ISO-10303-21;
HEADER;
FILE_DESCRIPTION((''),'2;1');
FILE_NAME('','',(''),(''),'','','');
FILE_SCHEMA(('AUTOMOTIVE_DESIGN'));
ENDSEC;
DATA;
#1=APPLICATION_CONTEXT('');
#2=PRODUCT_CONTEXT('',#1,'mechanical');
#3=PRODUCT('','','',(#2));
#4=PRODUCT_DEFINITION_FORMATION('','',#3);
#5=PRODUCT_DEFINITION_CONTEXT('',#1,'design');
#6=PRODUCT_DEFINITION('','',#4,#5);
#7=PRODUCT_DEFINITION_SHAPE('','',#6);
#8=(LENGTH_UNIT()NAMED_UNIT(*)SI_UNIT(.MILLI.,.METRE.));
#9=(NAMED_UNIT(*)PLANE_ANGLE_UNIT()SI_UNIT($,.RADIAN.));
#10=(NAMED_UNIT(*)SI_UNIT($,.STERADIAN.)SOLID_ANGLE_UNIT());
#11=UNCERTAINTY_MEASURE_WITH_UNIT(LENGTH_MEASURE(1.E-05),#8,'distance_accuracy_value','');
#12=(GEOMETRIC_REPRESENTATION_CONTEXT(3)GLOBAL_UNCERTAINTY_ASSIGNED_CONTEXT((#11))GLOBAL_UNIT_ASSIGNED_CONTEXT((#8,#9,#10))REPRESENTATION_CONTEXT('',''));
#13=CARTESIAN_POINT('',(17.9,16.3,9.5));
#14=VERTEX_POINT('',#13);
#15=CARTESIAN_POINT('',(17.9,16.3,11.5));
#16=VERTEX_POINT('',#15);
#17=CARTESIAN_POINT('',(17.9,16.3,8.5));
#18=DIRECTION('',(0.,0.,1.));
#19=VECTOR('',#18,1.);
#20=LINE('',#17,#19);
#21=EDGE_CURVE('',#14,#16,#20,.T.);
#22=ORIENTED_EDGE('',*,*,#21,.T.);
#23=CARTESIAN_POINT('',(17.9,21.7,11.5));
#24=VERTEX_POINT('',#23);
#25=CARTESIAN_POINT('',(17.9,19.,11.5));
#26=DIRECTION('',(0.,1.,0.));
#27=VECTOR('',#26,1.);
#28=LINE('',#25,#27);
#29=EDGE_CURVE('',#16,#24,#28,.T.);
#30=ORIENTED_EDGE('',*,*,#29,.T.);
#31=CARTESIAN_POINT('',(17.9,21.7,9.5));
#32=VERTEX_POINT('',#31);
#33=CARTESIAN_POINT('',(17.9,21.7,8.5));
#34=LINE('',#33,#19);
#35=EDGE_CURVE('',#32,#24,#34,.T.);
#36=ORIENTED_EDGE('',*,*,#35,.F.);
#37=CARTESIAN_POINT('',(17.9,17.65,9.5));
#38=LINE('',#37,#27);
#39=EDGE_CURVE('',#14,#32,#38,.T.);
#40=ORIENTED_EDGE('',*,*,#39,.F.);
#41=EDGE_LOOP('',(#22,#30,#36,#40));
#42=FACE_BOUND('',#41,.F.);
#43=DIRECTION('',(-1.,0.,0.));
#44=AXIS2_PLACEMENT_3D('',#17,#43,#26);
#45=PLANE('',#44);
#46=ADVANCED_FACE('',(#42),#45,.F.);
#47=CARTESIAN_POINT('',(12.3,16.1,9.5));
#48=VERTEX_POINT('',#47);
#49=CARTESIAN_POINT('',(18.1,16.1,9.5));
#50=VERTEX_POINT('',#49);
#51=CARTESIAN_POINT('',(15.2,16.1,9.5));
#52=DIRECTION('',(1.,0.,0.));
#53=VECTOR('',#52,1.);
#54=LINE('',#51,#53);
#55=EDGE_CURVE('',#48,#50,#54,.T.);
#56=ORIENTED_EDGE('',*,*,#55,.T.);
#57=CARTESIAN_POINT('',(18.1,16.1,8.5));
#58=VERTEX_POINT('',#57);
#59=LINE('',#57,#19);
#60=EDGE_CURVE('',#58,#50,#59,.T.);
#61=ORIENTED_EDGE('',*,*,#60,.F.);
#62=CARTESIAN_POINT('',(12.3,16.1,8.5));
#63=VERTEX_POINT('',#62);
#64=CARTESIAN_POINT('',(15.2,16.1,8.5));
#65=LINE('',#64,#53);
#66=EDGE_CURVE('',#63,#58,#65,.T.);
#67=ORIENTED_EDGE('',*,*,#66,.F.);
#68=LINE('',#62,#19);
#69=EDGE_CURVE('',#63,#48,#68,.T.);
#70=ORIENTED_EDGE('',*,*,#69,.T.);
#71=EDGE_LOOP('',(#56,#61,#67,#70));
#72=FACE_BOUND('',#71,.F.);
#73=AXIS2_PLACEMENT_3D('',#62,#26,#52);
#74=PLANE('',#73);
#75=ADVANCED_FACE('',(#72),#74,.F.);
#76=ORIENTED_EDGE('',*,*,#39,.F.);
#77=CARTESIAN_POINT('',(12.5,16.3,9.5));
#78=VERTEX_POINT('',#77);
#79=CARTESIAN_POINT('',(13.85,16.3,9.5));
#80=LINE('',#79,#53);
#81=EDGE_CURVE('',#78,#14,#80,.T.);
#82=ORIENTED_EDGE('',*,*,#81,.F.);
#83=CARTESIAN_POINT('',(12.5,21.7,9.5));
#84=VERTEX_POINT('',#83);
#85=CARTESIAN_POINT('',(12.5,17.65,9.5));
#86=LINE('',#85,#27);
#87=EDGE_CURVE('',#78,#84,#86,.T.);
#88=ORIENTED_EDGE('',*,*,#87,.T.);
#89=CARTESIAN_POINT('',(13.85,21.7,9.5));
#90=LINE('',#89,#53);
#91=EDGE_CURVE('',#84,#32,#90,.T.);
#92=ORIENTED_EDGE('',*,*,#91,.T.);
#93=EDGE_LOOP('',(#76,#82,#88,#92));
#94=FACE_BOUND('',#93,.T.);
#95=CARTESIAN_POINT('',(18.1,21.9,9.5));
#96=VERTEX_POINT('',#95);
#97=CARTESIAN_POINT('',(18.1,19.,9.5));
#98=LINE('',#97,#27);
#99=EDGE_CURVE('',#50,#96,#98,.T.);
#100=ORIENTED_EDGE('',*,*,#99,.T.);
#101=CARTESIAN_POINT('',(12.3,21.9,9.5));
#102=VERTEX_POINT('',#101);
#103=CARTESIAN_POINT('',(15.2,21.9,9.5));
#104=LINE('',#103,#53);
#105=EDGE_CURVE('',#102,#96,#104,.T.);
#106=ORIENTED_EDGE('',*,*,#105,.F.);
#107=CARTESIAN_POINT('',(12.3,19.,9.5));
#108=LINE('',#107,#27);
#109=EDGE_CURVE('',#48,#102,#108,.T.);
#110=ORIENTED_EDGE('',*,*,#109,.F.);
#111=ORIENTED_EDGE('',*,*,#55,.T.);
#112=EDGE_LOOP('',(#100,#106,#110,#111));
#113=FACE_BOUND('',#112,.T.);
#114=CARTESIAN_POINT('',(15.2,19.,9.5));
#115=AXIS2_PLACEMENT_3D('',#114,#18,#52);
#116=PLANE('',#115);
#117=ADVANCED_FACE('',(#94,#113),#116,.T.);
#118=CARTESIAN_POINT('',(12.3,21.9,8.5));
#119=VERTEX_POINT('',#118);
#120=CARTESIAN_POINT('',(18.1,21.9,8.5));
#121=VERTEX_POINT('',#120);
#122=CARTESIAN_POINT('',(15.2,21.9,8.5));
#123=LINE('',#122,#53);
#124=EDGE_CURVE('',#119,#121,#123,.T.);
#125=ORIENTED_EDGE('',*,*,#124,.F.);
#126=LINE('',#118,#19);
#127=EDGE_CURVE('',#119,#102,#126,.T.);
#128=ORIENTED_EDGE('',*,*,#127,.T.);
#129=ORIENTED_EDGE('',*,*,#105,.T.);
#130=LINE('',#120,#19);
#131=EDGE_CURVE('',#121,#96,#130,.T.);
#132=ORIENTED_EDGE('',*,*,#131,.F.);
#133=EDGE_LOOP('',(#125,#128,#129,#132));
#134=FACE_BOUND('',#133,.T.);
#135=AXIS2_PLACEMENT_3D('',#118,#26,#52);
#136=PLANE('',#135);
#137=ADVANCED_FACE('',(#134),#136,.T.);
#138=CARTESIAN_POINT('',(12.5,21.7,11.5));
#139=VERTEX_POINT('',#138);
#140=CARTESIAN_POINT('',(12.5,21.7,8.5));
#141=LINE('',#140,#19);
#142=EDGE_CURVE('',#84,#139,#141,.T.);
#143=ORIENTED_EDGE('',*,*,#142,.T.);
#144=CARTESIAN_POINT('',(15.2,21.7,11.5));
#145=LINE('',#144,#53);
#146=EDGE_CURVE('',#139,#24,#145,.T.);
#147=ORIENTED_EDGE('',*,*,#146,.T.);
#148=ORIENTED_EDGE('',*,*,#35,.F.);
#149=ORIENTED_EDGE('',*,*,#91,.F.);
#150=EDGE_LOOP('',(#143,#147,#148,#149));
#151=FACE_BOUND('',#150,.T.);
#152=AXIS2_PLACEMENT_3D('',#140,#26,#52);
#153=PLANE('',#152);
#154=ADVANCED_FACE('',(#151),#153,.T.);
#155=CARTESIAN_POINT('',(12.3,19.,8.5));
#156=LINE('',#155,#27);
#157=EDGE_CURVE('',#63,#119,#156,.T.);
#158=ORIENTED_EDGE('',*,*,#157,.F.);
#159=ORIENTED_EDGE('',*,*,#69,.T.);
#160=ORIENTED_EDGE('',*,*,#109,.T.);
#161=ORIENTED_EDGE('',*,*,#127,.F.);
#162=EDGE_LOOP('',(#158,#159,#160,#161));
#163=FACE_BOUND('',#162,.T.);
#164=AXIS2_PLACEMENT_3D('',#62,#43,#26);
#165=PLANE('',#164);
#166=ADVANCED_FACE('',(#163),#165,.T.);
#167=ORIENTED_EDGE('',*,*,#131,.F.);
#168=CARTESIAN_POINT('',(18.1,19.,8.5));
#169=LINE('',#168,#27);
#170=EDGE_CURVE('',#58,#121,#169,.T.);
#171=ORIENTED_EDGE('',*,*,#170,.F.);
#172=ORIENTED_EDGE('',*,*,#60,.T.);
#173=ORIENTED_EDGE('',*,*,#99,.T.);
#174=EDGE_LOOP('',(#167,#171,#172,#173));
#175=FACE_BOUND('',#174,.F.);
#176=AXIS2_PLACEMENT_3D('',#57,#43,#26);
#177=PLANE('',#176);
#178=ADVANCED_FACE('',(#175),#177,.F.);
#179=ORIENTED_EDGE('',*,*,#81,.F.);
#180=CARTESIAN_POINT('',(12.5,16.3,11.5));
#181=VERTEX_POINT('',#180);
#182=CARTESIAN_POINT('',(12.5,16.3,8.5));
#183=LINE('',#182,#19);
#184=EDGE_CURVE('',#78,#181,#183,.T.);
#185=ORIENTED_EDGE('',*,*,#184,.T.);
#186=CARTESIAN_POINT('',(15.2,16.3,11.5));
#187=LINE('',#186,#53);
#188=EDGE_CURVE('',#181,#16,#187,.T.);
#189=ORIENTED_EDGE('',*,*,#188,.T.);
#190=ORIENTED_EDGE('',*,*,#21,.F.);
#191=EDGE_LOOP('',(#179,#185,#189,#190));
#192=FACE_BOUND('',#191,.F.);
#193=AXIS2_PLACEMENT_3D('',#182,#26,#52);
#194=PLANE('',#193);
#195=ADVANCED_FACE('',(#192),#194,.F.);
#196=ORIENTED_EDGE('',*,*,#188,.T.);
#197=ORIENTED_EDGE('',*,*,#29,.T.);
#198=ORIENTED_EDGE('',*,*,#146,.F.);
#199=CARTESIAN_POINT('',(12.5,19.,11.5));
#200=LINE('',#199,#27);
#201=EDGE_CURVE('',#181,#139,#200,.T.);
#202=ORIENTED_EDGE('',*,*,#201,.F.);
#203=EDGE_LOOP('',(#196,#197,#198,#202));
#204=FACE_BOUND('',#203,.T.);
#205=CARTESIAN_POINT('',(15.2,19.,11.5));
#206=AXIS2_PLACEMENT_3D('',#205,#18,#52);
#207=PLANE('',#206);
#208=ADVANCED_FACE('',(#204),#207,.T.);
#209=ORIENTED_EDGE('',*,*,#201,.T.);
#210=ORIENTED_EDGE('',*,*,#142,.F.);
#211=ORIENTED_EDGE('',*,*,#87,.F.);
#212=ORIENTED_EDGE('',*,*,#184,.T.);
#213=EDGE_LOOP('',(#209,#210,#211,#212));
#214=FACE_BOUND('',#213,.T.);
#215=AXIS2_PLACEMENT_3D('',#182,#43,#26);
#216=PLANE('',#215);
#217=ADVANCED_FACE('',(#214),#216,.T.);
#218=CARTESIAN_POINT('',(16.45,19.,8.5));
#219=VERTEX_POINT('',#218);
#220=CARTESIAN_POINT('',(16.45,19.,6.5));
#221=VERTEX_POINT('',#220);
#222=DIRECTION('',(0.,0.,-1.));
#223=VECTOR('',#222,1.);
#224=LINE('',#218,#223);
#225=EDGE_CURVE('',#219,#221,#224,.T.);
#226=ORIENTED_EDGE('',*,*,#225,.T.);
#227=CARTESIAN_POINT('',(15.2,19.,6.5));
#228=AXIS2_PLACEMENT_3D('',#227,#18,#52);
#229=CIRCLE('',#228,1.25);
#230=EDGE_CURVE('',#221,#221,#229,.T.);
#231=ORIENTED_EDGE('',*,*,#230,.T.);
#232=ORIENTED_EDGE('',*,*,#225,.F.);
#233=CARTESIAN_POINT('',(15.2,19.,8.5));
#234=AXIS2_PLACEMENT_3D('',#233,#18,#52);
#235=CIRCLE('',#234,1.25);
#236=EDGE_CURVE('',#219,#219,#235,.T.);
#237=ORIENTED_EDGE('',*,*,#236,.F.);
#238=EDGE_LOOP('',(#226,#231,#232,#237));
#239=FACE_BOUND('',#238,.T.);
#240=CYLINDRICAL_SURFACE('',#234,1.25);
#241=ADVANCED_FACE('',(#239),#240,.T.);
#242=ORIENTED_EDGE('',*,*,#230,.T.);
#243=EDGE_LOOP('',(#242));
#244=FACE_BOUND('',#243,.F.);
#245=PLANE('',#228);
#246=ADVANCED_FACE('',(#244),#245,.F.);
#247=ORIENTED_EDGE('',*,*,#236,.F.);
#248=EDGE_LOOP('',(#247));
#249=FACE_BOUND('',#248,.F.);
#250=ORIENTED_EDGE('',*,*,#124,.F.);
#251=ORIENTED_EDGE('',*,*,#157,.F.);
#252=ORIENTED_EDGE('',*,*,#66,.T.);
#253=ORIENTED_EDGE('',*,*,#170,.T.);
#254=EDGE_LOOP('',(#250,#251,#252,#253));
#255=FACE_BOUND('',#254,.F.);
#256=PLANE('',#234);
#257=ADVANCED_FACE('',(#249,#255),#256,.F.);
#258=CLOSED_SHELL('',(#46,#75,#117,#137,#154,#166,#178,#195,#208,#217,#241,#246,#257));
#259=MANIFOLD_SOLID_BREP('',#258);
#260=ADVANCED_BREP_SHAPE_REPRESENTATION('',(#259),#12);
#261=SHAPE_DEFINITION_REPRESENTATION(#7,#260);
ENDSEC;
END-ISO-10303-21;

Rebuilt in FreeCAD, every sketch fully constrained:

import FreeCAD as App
import Part
import Sketcher
from FreeCAD import Vector
Q = App.Units.Quantity

doc = App.newDocument("Part")
body = doc.addObject("PartDesign::Body", "Body")

# Sketch on XY plane
sketch1 = body.newObject("Sketcher::SketchObject", "Sketch")
sketch1.AttachmentSupport = (doc.getObject("XY_Plane"), [""])
sketch1.MapMode = "FlatFace"
sketch1.addGeometry(Part.LineSegment(Vector(12.5, 21.7, 0), Vector(12.5, 16.3, 0)), False)
sketch1.addGeometry(Part.LineSegment(Vector(12.5, 16.3, 0), Vector(17.9, 16.3, 0)), False)
sketch1.addGeometry(Part.LineSegment(Vector(17.9, 16.3, 0), Vector(17.9, 21.7, 0)), False)
sketch1.addGeometry(Part.LineSegment(Vector(17.9, 21.7, 0), Vector(12.5, 21.7, 0)), False)
sketch1.addConstraint(Sketcher.Constraint("Coincident", 0, 2, 1, 1))
sketch1.addConstraint(Sketcher.Constraint("Coincident", 1, 2, 2, 1))
sketch1.addConstraint(Sketcher.Constraint("Coincident", 2, 2, 3, 1))
sketch1.addConstraint(Sketcher.Constraint("Coincident", 3, 2, 0, 1))
sketch1.addConstraint(Sketcher.Constraint("Vertical", 0))
sketch1.addConstraint(Sketcher.Constraint("Horizontal", 1))
sketch1.addConstraint(Sketcher.Constraint("Vertical", 2))
sketch1.addConstraint(Sketcher.Constraint("Horizontal", 3))
sketch1.addConstraint(Sketcher.Constraint("Equal", 3, 0))
sketch1.addConstraint(Sketcher.Constraint("DistanceX", 1, 1, 1, 2, Q("5.4 mm")))
sketch1.addConstraint(Sketcher.Constraint("DistanceX", -1, 1, 0, 2, Q("12.5 mm")))
sketch1.addConstraint(Sketcher.Constraint("DistanceY", -1, 1, 0, 2, Q("16.3 mm")))
pad1 = body.newObject("PartDesign::Pad", "Pad")
pad1.Profile = sketch1
pad1.Length = 3

# Sketch on XY plane
sketch2 = body.newObject("Sketcher::SketchObject", "Sketch001")
sketch2.AttachmentSupport = (doc.getObject("XY_Plane"), [""])
sketch2.MapMode = "FlatFace"
sketch2.addGeometry(Part.LineSegment(Vector(12.3, 21.9, 0), Vector(12.3, 16.1, 0)), False)
sketch2.addGeometry(Part.LineSegment(Vector(12.3, 16.1, 0), Vector(18.1, 16.1, 0)), False)
sketch2.addGeometry(Part.LineSegment(Vector(18.1, 16.1, 0), Vector(18.1, 21.9, 0)), False)
sketch2.addGeometry(Part.LineSegment(Vector(18.1, 21.9, 0), Vector(12.3, 21.9, 0)), False)
sketch2.addConstraint(Sketcher.Constraint("Coincident", 0, 2, 1, 1))
sketch2.addConstraint(Sketcher.Constraint("Coincident", 1, 2, 2, 1))
sketch2.addConstraint(Sketcher.Constraint("Coincident", 2, 2, 3, 1))
sketch2.addConstraint(Sketcher.Constraint("Coincident", 3, 2, 0, 1))
sketch2.addConstraint(Sketcher.Constraint("Vertical", 0))
sketch2.addConstraint(Sketcher.Constraint("Horizontal", 1))
sketch2.addConstraint(Sketcher.Constraint("Vertical", 2))
sketch2.addConstraint(Sketcher.Constraint("Horizontal", 3))
sketch2.addConstraint(Sketcher.Constraint("Equal", 3, 0))
sketch2.addConstraint(Sketcher.Constraint("DistanceX", 1, 1, 1, 2, Q("5.8 mm")))
sketch2.addConstraint(Sketcher.Constraint("DistanceX", -1, 1, 0, 2, Q("12.3 mm")))
sketch2.addConstraint(Sketcher.Constraint("DistanceY", -1, 1, 0, 2, Q("16.1 mm")))
pad2 = body.newObject("PartDesign::Pad", "Pad001")
pad2.Profile = sketch2
pad2.Length = 1

# Sketch on XY plane
sketch3 = body.newObject("Sketcher::SketchObject", "Sketch002")
sketch3.AttachmentSupport = (doc.getObject("XY_Plane"), [""])
sketch3.MapMode = "FlatFace"
sketch3.addGeometry(Part.Circle(Vector(15.2, 19, 0), Vector(0, 0, 1), 1.25), False)
sketch3.addConstraint(Sketcher.Constraint("Diameter", 0, Q("2.5 mm")))
sketch3.addConstraint(Sketcher.Constraint("DistanceY", -1, 1, 0, 3, Q("19 mm")))
sketch3.addConstraint(Sketcher.Constraint("DistanceX", -1, 1, 0, 3, Q("15.2 mm")))
pad3 = body.newObject("PartDesign::Pad", "Pad002")
pad3.Profile = sketch3
pad3.Length = 2
pad3.Reversed = True
body2 = doc.addObject("PartDesign::Body", "Body001")
doc.recompute()

body.Placement = App.Placement(Vector(0, 0, 8.5), App.Rotation(Vector(0, 0, 1), 0))
boolean = body2.newObject("PartDesign::Boolean", "Boolean")
boolean.Type = "Fuse"
boolean.addObjects([body])

doc.recompute()
